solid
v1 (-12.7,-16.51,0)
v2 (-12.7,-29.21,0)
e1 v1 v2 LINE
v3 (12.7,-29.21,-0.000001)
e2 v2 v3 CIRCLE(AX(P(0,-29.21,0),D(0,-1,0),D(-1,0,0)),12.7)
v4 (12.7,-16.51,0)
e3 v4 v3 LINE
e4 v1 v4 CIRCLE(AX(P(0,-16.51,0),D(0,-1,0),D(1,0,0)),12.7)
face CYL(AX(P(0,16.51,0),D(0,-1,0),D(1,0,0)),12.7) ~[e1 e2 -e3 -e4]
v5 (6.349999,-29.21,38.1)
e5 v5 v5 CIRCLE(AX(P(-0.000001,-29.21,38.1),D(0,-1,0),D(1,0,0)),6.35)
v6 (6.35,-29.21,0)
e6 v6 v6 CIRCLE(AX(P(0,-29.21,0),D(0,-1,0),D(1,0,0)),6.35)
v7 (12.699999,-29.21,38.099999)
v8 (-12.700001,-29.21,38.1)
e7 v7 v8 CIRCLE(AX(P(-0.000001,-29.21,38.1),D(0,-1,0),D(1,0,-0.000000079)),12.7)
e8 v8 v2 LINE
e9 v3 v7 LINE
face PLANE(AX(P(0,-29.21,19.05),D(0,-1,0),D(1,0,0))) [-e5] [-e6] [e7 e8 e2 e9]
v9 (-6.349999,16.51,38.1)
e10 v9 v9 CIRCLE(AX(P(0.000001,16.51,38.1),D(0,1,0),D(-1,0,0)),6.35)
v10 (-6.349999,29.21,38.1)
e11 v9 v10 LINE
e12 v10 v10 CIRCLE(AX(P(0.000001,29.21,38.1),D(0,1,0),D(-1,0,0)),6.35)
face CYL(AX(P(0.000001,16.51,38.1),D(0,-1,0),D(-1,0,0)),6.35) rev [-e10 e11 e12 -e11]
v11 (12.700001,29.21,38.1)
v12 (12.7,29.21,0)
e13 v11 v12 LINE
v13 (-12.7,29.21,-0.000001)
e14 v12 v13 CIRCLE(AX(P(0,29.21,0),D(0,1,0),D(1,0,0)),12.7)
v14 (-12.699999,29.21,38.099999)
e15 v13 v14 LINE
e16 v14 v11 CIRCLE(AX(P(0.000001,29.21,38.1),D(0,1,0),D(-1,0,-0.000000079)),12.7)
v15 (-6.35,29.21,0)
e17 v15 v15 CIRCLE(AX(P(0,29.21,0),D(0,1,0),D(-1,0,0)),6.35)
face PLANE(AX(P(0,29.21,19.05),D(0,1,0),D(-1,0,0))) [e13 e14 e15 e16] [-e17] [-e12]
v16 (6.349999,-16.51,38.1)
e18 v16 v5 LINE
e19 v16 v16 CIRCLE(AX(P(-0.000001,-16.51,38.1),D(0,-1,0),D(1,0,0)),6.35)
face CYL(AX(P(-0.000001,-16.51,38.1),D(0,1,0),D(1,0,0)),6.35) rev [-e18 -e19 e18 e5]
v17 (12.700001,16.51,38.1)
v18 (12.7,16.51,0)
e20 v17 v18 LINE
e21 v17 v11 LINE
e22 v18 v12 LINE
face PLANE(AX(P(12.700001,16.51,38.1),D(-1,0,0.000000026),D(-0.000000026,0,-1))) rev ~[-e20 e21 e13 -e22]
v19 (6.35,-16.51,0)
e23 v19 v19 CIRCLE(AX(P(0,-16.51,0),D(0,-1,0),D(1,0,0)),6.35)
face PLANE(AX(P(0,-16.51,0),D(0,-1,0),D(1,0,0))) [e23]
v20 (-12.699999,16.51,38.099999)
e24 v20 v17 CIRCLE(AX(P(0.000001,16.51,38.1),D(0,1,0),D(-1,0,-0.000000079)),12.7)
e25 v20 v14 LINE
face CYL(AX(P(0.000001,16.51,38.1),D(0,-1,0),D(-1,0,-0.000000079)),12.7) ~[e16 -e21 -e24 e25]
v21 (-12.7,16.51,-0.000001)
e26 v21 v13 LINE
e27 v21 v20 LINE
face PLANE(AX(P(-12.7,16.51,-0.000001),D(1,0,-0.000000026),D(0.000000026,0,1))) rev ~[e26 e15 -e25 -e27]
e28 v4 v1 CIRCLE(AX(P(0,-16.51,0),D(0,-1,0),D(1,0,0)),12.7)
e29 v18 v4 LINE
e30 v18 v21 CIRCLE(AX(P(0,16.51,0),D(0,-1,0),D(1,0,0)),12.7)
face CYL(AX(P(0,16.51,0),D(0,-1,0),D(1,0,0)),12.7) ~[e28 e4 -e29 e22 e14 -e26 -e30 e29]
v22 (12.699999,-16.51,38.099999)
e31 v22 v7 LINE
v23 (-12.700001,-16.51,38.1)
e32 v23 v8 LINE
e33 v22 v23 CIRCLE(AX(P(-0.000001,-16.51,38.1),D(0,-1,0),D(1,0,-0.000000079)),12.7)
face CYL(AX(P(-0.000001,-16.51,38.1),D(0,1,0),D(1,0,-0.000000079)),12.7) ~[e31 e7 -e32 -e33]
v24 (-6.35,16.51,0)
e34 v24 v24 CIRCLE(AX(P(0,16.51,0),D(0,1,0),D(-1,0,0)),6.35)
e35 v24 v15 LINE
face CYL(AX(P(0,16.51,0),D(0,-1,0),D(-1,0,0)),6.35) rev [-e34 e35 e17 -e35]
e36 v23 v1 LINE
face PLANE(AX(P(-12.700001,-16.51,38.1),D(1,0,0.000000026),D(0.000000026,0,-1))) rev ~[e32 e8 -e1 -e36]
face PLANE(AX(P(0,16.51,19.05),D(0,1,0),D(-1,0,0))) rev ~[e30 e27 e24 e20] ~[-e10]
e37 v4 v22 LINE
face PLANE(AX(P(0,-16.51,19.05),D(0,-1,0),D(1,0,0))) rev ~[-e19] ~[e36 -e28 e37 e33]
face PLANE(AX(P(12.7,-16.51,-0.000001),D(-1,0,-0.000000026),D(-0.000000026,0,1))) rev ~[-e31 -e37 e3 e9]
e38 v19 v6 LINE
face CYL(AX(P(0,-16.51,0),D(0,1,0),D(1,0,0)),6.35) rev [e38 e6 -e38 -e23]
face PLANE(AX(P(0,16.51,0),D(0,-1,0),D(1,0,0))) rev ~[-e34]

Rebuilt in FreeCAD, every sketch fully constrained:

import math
import FreeCAD as App
import Part
import Sketcher

V = App.Vector
Q = App.Units.Quantity

doc = App.newDocument("Part")
body = doc.addObject("PartDesign::Body", "Body")

# Sketch on XZ plane
sketch1 = body.newObject("Sketcher::SketchObject", "Sketch")
sketch1.AttachmentSupport = (doc.getObject("XZ_Plane"), [""])
sketch1.MapMode = "FlatFace"
sketch1.addGeometry(Part.Circle(V(0, 0, 0), V(0, 0, 1), 13), False)
sketch1.addConstraint([
    Sketcher.Constraint("Coincident", 0, 3, -1, 1),
    Sketcher.Constraint("Diameter", 0, Q("1 in")),
])
pad1 = body.newObject("PartDesign::Pad", "Pad")
pad1.Profile = sketch1
pad1.Length = Q("1.3 in")
pad1.Midplane = True

# Sketch on XZ plane
sketch2 = body.newObject("Sketcher::SketchObject", "Sketch001")
sketch2.AttachmentSupport = (doc.getObject("XZ_Plane"), [""])
sketch2.MapMode = "FlatFace"
sketch2.AttachmentOffset = App.Placement(V(0, 0, 0.65 * 25.4), App.Rotation())
sketch2.addGeometry([
    Part.LineSegment(V(13, 0, 0), V(13, 38, 0)),  # 0
    Part.ArcOfCircle(Part.Circle(V(0, 38, 0), V(0, 0, 1), 13), math.radians(0), math.radians(180)),  # 1
    Part.LineSegment(V(-13, 38, 0), V(-13, 0, 0)),  # 2
    Part.ArcOfCircle(Part.Circle(V(0, 0, 0), V(0, 0, 1), 13), math.radians(180), math.radians(360)),  # 3
    Part.Circle(V(0, 0, 0), V(0, 0, 1), 6),  # 4
    Part.Circle(V(0, 38, 0), V(0, 0, 1), 6),  # 5
], False)
sketch2.addConstraint([
    Sketcher.Constraint("Tangent", 0, 2, 1, 1),
    Sketcher.Constraint("Tangent", 1, 2, 2, 1),
    Sketcher.Constraint("Tangent", 2, 2, 3, 1),
    Sketcher.Constraint("Tangent", 3, 2, 0, 1),
    Sketcher.Constraint("Vertical", 0),
    Sketcher.Constraint("Vertical", 2),
    Sketcher.Constraint("Coincident", 3, 3, -1, 1),
    Sketcher.Constraint("Coincident", 4, 3, -1, 1),
    Sketcher.Constraint("Coincident", 5, 3, 1, 3),
    Sketcher.Constraint("Equal", 4, 5),
    Sketcher.Constraint("Diameter", 4, Q("0.5 in")),
    Sketcher.Constraint("Radius", 1, Q("0.5 in")),
    Sketcher.Constraint("DistanceY", 0, 1, 0, 2, Q("1.5 in")),
])
pad2 = body.newObject("PartDesign::Pad", "Pad001")
pad2.Profile = sketch2
pad2.Length = Q("0.5 in")

# Sketch on XZ plane
sketch3 = body.newObject("Sketcher::SketchObject", "Sketch002")
sketch3.AttachmentSupport = (doc.getObject("XZ_Plane"), [""])
sketch3.MapMode = "FlatFace"
sketch3.AttachmentOffset = App.Placement(V(0, 0, -0.65 * 25.4), App.Rotation())
sketch3.addGeometry([
    Part.LineSegment(V(-13, 0, 0), V(-13, 38, 0)),  # 0
    Part.ArcOfCircle(Part.Circle(V(0, 38, 0), V(0, 0, 1), 13), math.radians(0), math.radians(180)),  # 1
    Part.LineSegment(V(13, 38, 0), V(13, 0, 0)),  # 2
    Part.ArcOfCircle(Part.Circle(V(0, 0, 0), V(0, 0, 1), 13), math.radians(-180), math.radians(0)),  # 3
    Part.Circle(V(0, 0, 0), V(0, 0, 1), 6),  # 4
    Part.Circle(V(0, 38, 0), V(0, 0, 1), 6),  # 5
], False)
sketch3.addConstraint([
    Sketcher.Constraint("Tangent", 0, 2, 1, 2),
    Sketcher.Constraint("Tangent", 1, 1, 2, 1),
    Sketcher.Constraint("Tangent", 2, 2, 3, 2),
    Sketcher.Constraint("Tangent", 3, 1, 0, 1),
    Sketcher.Constraint("Vertical", 0),
    Sketcher.Constraint("Vertical", 2),
    Sketcher.Constraint("Coincident", 3, 3, -1, 1),
    Sketcher.Constraint("Coincident", 4, 3, -1, 1),
    Sketcher.Constraint("Coincident", 5, 3, 1, 3),
    Sketcher.Constraint("Equal", 4, 5),
    Sketcher.Constraint("Diameter", 4, Q("0.5 in")),
    Sketcher.Constraint("Radius", 1, Q("0.5 in")),
    Sketcher.Constraint("DistanceY", 0, 1, 0, 2, Q("1.5 in")),
])
pad3 = body.newObject("PartDesign::Pad", "Pad002")
pad3.Profile = sketch3
pad3.Length = Q("0.5 in")
pad3.Reversed = True

doc.recompute()
